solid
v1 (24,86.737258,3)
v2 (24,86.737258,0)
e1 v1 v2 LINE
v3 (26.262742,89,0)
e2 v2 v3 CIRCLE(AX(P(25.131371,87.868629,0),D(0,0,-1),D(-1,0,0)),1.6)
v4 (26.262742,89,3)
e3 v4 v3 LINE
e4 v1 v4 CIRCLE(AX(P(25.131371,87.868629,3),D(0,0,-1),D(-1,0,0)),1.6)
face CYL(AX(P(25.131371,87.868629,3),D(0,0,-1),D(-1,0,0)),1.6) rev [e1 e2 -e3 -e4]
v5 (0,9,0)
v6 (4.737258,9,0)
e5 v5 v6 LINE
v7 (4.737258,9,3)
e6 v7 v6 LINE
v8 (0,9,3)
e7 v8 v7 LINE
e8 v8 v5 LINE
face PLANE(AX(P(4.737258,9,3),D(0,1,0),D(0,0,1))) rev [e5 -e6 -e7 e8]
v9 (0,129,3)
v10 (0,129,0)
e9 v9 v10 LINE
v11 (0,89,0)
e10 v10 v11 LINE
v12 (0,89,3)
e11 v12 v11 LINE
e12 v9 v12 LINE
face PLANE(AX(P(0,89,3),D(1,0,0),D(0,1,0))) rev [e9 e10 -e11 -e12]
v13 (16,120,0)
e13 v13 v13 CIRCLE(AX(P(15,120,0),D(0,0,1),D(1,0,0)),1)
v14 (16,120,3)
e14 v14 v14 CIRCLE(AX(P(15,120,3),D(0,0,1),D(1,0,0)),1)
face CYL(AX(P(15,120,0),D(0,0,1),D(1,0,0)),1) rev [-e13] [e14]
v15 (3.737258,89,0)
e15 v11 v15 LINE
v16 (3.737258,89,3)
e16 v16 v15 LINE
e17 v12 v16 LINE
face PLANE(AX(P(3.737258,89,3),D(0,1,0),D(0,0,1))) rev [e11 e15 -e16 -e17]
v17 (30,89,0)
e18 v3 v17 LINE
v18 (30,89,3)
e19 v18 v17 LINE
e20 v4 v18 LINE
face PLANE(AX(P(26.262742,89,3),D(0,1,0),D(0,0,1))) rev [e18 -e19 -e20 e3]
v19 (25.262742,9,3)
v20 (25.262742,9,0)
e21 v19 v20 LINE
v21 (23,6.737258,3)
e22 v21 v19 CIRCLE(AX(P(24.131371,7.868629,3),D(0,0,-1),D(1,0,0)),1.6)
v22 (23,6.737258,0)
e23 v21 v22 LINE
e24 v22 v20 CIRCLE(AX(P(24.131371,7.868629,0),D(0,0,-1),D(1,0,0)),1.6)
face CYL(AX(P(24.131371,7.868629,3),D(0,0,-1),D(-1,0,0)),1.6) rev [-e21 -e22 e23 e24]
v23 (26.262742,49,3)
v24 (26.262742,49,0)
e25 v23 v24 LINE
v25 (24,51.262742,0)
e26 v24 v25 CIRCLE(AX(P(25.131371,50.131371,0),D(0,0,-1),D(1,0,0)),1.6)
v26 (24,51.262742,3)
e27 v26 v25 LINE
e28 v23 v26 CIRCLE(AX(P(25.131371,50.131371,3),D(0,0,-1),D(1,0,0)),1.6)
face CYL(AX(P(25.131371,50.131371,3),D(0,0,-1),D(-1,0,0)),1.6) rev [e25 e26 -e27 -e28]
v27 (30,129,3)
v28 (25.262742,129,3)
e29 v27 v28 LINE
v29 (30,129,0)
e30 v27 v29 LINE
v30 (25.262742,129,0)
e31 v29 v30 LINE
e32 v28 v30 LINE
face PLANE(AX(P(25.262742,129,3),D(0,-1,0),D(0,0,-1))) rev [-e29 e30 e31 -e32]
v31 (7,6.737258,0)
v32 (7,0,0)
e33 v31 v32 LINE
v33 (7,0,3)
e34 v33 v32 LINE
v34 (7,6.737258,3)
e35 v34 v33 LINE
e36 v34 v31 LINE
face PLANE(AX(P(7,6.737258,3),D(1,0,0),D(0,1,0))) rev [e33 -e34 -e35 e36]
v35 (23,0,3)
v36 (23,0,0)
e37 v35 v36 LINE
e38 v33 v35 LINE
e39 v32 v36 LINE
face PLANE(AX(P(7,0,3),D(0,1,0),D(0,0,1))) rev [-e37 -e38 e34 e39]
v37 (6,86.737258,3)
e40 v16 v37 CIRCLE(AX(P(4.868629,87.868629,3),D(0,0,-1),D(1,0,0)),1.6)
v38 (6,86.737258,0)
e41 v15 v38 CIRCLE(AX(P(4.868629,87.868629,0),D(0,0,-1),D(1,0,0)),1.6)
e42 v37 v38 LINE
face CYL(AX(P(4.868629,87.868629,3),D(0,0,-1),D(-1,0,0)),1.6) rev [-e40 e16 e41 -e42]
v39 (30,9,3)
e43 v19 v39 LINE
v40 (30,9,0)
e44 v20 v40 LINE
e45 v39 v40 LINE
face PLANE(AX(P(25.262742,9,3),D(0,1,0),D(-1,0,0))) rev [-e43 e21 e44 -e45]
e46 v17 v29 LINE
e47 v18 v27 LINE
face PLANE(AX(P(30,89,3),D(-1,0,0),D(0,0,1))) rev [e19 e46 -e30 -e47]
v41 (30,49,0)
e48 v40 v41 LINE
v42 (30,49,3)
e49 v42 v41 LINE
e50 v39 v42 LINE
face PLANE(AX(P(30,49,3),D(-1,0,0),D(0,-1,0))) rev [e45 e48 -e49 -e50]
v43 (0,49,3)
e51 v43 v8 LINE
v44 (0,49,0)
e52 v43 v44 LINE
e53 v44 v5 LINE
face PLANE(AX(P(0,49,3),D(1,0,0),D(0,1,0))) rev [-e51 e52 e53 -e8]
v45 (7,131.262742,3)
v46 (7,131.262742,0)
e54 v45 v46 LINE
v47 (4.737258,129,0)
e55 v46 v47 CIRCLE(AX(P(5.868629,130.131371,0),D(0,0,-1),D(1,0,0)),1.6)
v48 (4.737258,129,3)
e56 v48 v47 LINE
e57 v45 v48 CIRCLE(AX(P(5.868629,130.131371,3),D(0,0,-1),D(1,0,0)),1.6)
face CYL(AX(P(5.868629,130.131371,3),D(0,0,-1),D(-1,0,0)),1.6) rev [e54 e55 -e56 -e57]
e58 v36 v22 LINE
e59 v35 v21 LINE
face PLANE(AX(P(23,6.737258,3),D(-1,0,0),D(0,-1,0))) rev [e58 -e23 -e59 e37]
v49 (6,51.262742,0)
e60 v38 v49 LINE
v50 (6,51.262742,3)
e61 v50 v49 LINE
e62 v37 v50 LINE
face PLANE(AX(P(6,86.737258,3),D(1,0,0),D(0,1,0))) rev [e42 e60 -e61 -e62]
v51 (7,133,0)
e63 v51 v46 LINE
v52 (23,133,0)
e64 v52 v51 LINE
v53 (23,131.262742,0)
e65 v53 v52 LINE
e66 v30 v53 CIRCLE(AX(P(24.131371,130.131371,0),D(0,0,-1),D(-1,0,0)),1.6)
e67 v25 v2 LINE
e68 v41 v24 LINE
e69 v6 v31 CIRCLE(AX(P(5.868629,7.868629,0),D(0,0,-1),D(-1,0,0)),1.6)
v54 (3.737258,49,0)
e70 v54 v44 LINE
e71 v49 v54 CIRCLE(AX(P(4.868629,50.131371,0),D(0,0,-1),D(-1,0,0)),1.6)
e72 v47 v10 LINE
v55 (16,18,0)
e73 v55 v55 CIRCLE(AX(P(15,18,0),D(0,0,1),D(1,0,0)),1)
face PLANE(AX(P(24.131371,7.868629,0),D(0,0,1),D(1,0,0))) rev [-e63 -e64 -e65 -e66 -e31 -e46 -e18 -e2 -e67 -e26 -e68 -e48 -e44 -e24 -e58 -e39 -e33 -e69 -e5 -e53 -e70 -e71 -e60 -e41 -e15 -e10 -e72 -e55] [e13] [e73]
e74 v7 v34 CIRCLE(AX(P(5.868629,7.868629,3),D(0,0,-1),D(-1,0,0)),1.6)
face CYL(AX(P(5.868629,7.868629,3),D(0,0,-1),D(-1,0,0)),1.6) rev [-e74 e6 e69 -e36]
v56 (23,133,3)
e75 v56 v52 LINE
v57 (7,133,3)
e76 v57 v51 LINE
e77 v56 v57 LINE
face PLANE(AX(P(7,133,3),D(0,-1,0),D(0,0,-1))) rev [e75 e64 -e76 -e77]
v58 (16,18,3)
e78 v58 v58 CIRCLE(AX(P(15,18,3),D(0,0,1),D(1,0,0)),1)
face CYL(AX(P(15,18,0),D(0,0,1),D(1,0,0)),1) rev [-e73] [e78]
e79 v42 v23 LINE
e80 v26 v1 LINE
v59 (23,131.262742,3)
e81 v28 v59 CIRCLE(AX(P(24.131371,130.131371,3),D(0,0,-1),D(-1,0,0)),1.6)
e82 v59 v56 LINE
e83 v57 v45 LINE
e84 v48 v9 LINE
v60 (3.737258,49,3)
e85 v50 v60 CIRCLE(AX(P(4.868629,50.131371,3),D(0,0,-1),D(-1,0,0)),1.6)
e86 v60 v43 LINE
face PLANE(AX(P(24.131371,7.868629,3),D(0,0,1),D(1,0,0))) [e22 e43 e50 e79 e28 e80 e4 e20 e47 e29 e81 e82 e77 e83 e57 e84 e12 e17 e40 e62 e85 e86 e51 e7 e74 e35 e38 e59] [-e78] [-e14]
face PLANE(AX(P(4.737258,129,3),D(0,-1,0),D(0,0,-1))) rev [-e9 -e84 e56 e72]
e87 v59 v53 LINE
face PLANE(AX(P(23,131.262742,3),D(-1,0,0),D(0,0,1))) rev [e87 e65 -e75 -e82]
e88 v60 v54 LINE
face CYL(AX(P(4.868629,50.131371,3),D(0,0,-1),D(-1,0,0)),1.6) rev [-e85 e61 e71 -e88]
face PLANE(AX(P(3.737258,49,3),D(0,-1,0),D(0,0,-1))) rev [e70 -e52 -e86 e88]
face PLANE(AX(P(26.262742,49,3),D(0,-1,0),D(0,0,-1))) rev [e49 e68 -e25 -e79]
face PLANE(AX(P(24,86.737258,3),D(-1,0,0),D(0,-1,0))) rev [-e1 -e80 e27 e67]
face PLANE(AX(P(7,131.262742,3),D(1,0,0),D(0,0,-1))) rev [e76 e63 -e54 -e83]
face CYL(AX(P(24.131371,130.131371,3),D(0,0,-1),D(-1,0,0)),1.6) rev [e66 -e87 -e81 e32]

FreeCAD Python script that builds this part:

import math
import FreeCAD as App
import Part
import Sketcher
from FreeCAD import Vector
Q = App.Units.Quantity

doc = App.newDocument("Part")
body = doc.addObject("PartDesign::Body", "Body")

# Sketch on XY plane
sketch1 = body.newObject("Sketcher::SketchObject", "Sketch")
sketch1.AttachmentSupport = (doc.getObject("XY_Plane"), [""])
sketch1.MapMode = "FlatFace"
sketch1.addGeometry([
    Part.LineSegment(Vector(25.262742, 9, 0), Vector(30, 9, 0)),  # 0
    Part.LineSegment(Vector(30, 9, 0), Vector(30, 49, 0)),  # 1
    Part.LineSegment(Vector(30, 49, 0), Vector(26.262742, 49, 0)),  # 2
    Part.ArcOfCircle(Part.Circle(Vector(25.131371, 50.131371, 0), Vector(0, 0, 1), 1.6), math.radians(135), math.radians(315)),  # 3
    Part.LineSegment(Vector(24, 51.262742, 0), Vector(24, 86.737258, 0)),  # 4
    Part.ArcOfCircle(Part.Circle(Vector(25.131371, 87.868629, 0), Vector(0, 0, 1), 1.6), math.radians(45), math.radians(225)),  # 5
    Part.LineSegment(Vector(26.262742, 89, 0), Vector(30, 89, 0)),  # 6
    Part.LineSegment(Vector(30, 89, 0), Vector(30, 129, 0)),  # 7
    Part.LineSegment(Vector(30, 129, 0), Vector(25.262742, 129, 0)),  # 8
    Part.ArcOfCircle(Part.Circle(Vector(24.131371, 130.131371, 0), Vector(0, 0, 1), 1.6), math.radians(135), math.radians(315)),  # 9
    Part.LineSegment(Vector(23, 131.262742, 0), Vector(23, 133, 0)),  # 10
    Part.LineSegment(Vector(23, 133, 0), Vector(7, 133, 0)),  # 11
    Part.LineSegment(Vector(7, 133, 0), Vector(7, 131.262742, 0)),  # 12
    Part.ArcOfCircle(Part.Circle(Vector(5.868629, 130.131371, 0), Vector(0, 0, 1), 1.6), math.radians(-135), math.radians(45)),  # 13
    Part.LineSegment(Vector(4.737258, 129, 0), Vector(0, 129, 0)),  # 14
    Part.LineSegment(Vector(0, 129, 0), Vector(0, 89, 0)),  # 15
    Part.LineSegment(Vector(0, 89, 0), Vector(3.737258, 89, 0)),  # 16
    Part.ArcOfCircle(Part.Circle(Vector(4.868629, 87.868629, 0), Vector(0, 0, 1), 1.6), math.radians(-45), math.radians(135)),  # 17
    Part.LineSegment(Vector(6, 86.737258, 0), Vector(6, 51.262742, 0)),  # 18
    Part.ArcOfCircle(Part.Circle(Vector(4.868629, 50.131371, 0), Vector(0, 0, 1), 1.6), math.radians(-135), math.radians(45)),  # 19
    Part.LineSegment(Vector(3.737258, 49, 0), Vector(0, 49, 0)),  # 20
    Part.LineSegment(Vector(0, 49, 0), Vector(0, 9, 0)),  # 21
    Part.LineSegment(Vector(0, 9, 0), Vector(4.737258, 9, 0)),  # 22
    Part.ArcOfCircle(Part.Circle(Vector(5.868629, 7.868629, 0), Vector(0, 0, 1), 1.6), math.radians(-45), math.radians(135)),  # 23
    Part.LineSegment(Vector(7, 6.737258, 0), Vector(7, 0, 0)),  # 24
    Part.LineSegment(Vector(7, 0, 0), Vector(23, 0, 0)),  # 25
    Part.LineSegment(Vector(23, 0, 0), Vector(23, 6.737258, 0)),  # 26
    Part.ArcOfCircle(Part.Circle(Vector(24.131371, 7.868629, 0), Vector(0, 0, 1), 1.6), math.radians(45), math.radians(225)),  # 27
], False)
sketch1.addConstraint([
    Sketcher.Constraint("Coincident", 0, 2, 1, 1),
    Sketcher.Constraint("Coincident", 1, 2, 2, 1),
    Sketcher.Constraint("Coincident", 2, 2, 3, 2),
    Sketcher.Constraint("Coincident", 3, 1, 4, 1),
    Sketcher.Constraint("Coincident", 4, 2, 5, 2),
    Sketcher.Constraint("Coincident", 5, 1, 6, 1),
    Sketcher.Constraint("Coincident", 6, 2, 7, 1),
    Sketcher.Constraint("Coincident", 7, 2, 8, 1),
    Sketcher.Constraint("Coincident", 8, 2, 9, 2),
    Sketcher.Constraint("Coincident", 9, 1, 10, 1),
    Sketcher.Constraint("Coincident", 10, 2, 11, 1),
    Sketcher.Constraint("Coincident", 11, 2, 12, 1),
    Sketcher.Constraint("Coincident", 12, 2, 13, 2),
    Sketcher.Constraint("Coincident", 13, 1, 14, 1),
    Sketcher.Constraint("Coincident", 14, 2, 15, 1),
    Sketcher.Constraint("Coincident", 15, 2, 16, 1),
    Sketcher.Constraint("Coincident", 16, 2, 17, 2),
    Sketcher.Constraint("Coincident", 17, 1, 18, 1),
    Sketcher.Constraint("Coincident", 18, 2, 19, 2),
    Sketcher.Constraint("Coincident", 19, 1, 20, 1),
    Sketcher.Constraint("Coincident", 20, 2, 21, 1),
    Sketcher.Constraint("Coincident", 21, 2, 22, 1),
    Sketcher.Constraint("Coincident", 22, 2, 23, 2),
    Sketcher.Constraint("Coincident", 23, 1, 24, 1),
    Sketcher.Constraint("Coincident", 24, 2, 25, 1),
    Sketcher.Constraint("Coincident", 25, 2, 26, 1),
    Sketcher.Constraint("Coincident", 26, 2, 27, 2),
    Sketcher.Constraint("Coincident", 27, 1, 0, 1),
    Sketcher.Constraint("Horizontal", 0),
    Sketcher.Constraint("Vertical", 1),
    Sketcher.Constraint("Horizontal", 2),
    Sketcher.Constraint("Vertical", 4),
    Sketcher.Constraint("Horizontal", 6),
    Sketcher.Constraint("Vertical", 7),
    Sketcher.Constraint("Horizontal", 8),
    Sketcher.Constraint("Vertical", 10),
    Sketcher.Constraint("Horizontal", 11),
    Sketcher.Constraint("Vertical", 12),
    Sketcher.Constraint("Horizontal", 14),
    Sketcher.Constraint("Vertical", 15),
    Sketcher.Constraint("Horizontal", 16),
    Sketcher.Constraint("Vertical", 18),
    Sketcher.Constraint("Horizontal", 20),
    Sketcher.Constraint("Vertical", 21),
    Sketcher.Constraint("Horizontal", 22),
    Sketcher.Constraint("Vertical", 24),
    Sketcher.Constraint("Horizontal", 25),
    Sketcher.Constraint("Vertical", 26),
    Sketcher.Constraint("Equal", 3, 5),
    Sketcher.Constraint("Equal", 5, 9),
    Sketcher.Constraint("Equal", 9, 13),
    Sketcher.Constraint("Equal", 13, 17),
    Sketcher.Constraint("Equal", 17, 19),
    Sketcher.Constraint("Equal", 19, 23),
    Sketcher.Constraint("Equal", 23, 27),
    Sketcher.Constraint("PointOnObject", 14, 2, -2),
    Sketcher.Constraint("PointOnObject", 20, 2, -2),
    Sketcher.Constraint("PointOnObject", 24, 2, -1),
    Sketcher.Constraint("Horizontal", 9, 3, 13, 3),
    Sketcher.Constraint("Horizontal", 5, 3, 17, 3),
    Sketcher.Constraint("Horizontal", 3, 3, 19, 3),
    Sketcher.Constraint("Horizontal", 23, 3, 27, 3),
    Sketcher.Constraint("Horizontal", 9, 1, 12, 2),
    Sketcher.Constraint("Horizontal", 8, 2, 13, 1),
    Sketcher.Constraint("Horizontal", 6, 2, 15, 2),
    Sketcher.Constraint("Horizontal", 4, 2, 17, 1),
    Sketcher.Constraint("Horizontal", 3, 1, 18, 2),
    Sketcher.Constraint("Horizontal", 2, 2, 19, 1),
    Sketcher.Constraint("Horizontal", 0, 2, 21, 2),
    Sketcher.Constraint("Horizontal", 23, 1, 26, 2),
    Sketcher.Constraint("Vertical", 3, 3, 5, 3),
    Sketcher.Constraint("Vertical", 13, 3, 23, 3),
    Sketcher.Constraint("Vertical", 9, 3, 27, 3),
    Sketcher.Constraint("Vertical", 2, 2, 5, 1),
    Sketcher.Constraint("Vertical", 1, 2, 6, 2),
    Sketcher.Constraint("Vertical", 13, 1, 22, 2),
    Sketcher.Constraint("Vertical", 12, 2, 23, 1),
    Sketcher.Constraint("Equal", 8, 14),
    Sketcher.Constraint("Equal", 6, 16),
    Sketcher.Constraint("Equal", 1, 7),
    Sketcher.Constraint("Radius", 3, Q("1.6 mm")),
    Sketcher.Constraint("DistanceX", 11, 2, 11, 1, Q("16 mm")),
    Sketcher.Constraint("DistanceY", 1, 1, 1, 2, Q("40 mm")),
    Sketcher.Constraint("DistanceX", -1, 1, 0, 2, Q("30 mm")),
    Sketcher.Constraint("DistanceY", -1, 1, 0, 2, Q("9 mm")),
    Sketcher.Constraint("DistanceX", -1, 1, 3, 1, Q("24 mm")),
    Sketcher.Constraint("DistanceY", -1, 1, 5, 1, Q("89 mm")),
    Sketcher.Constraint("DistanceY", -1, 1, 10, 2, Q("133 mm")),
    Sketcher.Constraint("DistanceX", 9, 3, 5, 3, Q("1 mm")),
    Sketcher.Constraint("DistanceY", 3, 3, 9, 3, Q("80 mm")),
    Sketcher.Constraint("DistanceX", 0, 1, 0, 2, Q("4.737258 mm")),
    Sketcher.Constraint("DistanceX", -1, 1, 3, 3, Q("25.131371 mm")),
])
pad1 = body.newObject("PartDesign::Pad", "Pad")
pad1.Profile = sketch1
pad1.Length = 3

# Sketch on XY plane
sketch2 = body.newObject("Sketcher::SketchObject", "Sketch001")
sketch2.AttachmentSupport = (doc.getObject("XY_Plane"), [""])
sketch2.MapMode = "FlatFace"
sketch2.AttachmentOffset = App.Placement(Vector(0, 0, 3), App.Rotation())
sketch2.addGeometry([
    Part.Circle(Vector(15, 18, 0), Vector(0, 0, 1), 1),
    Part.Circle(Vector(15, 120, 0), Vector(0, 0, 1), 1),
], False)
sketch2.addConstraint([
    Sketcher.Constraint("Equal", 0, 1),
    Sketcher.Constraint("Vertical", 0, 3, 1, 3),
    Sketcher.Constraint("Diameter", 0, Q("2 mm")),
    Sketcher.Constraint("DistanceX", -1, 1, 0, 3, Q("15 mm")),
    Sketcher.Constraint("DistanceY", -1, 1, 0, 3, Q("18 mm")),
    Sketcher.Constraint("DistanceY", -1, 1, 1, 3, Q("120 mm")),
])
pocket1 = body.newObject("PartDesign::Pocket", "Pocket")
pocket1.Profile = sketch2
pocket1.Type = "ThroughAll"

doc.recompute()
